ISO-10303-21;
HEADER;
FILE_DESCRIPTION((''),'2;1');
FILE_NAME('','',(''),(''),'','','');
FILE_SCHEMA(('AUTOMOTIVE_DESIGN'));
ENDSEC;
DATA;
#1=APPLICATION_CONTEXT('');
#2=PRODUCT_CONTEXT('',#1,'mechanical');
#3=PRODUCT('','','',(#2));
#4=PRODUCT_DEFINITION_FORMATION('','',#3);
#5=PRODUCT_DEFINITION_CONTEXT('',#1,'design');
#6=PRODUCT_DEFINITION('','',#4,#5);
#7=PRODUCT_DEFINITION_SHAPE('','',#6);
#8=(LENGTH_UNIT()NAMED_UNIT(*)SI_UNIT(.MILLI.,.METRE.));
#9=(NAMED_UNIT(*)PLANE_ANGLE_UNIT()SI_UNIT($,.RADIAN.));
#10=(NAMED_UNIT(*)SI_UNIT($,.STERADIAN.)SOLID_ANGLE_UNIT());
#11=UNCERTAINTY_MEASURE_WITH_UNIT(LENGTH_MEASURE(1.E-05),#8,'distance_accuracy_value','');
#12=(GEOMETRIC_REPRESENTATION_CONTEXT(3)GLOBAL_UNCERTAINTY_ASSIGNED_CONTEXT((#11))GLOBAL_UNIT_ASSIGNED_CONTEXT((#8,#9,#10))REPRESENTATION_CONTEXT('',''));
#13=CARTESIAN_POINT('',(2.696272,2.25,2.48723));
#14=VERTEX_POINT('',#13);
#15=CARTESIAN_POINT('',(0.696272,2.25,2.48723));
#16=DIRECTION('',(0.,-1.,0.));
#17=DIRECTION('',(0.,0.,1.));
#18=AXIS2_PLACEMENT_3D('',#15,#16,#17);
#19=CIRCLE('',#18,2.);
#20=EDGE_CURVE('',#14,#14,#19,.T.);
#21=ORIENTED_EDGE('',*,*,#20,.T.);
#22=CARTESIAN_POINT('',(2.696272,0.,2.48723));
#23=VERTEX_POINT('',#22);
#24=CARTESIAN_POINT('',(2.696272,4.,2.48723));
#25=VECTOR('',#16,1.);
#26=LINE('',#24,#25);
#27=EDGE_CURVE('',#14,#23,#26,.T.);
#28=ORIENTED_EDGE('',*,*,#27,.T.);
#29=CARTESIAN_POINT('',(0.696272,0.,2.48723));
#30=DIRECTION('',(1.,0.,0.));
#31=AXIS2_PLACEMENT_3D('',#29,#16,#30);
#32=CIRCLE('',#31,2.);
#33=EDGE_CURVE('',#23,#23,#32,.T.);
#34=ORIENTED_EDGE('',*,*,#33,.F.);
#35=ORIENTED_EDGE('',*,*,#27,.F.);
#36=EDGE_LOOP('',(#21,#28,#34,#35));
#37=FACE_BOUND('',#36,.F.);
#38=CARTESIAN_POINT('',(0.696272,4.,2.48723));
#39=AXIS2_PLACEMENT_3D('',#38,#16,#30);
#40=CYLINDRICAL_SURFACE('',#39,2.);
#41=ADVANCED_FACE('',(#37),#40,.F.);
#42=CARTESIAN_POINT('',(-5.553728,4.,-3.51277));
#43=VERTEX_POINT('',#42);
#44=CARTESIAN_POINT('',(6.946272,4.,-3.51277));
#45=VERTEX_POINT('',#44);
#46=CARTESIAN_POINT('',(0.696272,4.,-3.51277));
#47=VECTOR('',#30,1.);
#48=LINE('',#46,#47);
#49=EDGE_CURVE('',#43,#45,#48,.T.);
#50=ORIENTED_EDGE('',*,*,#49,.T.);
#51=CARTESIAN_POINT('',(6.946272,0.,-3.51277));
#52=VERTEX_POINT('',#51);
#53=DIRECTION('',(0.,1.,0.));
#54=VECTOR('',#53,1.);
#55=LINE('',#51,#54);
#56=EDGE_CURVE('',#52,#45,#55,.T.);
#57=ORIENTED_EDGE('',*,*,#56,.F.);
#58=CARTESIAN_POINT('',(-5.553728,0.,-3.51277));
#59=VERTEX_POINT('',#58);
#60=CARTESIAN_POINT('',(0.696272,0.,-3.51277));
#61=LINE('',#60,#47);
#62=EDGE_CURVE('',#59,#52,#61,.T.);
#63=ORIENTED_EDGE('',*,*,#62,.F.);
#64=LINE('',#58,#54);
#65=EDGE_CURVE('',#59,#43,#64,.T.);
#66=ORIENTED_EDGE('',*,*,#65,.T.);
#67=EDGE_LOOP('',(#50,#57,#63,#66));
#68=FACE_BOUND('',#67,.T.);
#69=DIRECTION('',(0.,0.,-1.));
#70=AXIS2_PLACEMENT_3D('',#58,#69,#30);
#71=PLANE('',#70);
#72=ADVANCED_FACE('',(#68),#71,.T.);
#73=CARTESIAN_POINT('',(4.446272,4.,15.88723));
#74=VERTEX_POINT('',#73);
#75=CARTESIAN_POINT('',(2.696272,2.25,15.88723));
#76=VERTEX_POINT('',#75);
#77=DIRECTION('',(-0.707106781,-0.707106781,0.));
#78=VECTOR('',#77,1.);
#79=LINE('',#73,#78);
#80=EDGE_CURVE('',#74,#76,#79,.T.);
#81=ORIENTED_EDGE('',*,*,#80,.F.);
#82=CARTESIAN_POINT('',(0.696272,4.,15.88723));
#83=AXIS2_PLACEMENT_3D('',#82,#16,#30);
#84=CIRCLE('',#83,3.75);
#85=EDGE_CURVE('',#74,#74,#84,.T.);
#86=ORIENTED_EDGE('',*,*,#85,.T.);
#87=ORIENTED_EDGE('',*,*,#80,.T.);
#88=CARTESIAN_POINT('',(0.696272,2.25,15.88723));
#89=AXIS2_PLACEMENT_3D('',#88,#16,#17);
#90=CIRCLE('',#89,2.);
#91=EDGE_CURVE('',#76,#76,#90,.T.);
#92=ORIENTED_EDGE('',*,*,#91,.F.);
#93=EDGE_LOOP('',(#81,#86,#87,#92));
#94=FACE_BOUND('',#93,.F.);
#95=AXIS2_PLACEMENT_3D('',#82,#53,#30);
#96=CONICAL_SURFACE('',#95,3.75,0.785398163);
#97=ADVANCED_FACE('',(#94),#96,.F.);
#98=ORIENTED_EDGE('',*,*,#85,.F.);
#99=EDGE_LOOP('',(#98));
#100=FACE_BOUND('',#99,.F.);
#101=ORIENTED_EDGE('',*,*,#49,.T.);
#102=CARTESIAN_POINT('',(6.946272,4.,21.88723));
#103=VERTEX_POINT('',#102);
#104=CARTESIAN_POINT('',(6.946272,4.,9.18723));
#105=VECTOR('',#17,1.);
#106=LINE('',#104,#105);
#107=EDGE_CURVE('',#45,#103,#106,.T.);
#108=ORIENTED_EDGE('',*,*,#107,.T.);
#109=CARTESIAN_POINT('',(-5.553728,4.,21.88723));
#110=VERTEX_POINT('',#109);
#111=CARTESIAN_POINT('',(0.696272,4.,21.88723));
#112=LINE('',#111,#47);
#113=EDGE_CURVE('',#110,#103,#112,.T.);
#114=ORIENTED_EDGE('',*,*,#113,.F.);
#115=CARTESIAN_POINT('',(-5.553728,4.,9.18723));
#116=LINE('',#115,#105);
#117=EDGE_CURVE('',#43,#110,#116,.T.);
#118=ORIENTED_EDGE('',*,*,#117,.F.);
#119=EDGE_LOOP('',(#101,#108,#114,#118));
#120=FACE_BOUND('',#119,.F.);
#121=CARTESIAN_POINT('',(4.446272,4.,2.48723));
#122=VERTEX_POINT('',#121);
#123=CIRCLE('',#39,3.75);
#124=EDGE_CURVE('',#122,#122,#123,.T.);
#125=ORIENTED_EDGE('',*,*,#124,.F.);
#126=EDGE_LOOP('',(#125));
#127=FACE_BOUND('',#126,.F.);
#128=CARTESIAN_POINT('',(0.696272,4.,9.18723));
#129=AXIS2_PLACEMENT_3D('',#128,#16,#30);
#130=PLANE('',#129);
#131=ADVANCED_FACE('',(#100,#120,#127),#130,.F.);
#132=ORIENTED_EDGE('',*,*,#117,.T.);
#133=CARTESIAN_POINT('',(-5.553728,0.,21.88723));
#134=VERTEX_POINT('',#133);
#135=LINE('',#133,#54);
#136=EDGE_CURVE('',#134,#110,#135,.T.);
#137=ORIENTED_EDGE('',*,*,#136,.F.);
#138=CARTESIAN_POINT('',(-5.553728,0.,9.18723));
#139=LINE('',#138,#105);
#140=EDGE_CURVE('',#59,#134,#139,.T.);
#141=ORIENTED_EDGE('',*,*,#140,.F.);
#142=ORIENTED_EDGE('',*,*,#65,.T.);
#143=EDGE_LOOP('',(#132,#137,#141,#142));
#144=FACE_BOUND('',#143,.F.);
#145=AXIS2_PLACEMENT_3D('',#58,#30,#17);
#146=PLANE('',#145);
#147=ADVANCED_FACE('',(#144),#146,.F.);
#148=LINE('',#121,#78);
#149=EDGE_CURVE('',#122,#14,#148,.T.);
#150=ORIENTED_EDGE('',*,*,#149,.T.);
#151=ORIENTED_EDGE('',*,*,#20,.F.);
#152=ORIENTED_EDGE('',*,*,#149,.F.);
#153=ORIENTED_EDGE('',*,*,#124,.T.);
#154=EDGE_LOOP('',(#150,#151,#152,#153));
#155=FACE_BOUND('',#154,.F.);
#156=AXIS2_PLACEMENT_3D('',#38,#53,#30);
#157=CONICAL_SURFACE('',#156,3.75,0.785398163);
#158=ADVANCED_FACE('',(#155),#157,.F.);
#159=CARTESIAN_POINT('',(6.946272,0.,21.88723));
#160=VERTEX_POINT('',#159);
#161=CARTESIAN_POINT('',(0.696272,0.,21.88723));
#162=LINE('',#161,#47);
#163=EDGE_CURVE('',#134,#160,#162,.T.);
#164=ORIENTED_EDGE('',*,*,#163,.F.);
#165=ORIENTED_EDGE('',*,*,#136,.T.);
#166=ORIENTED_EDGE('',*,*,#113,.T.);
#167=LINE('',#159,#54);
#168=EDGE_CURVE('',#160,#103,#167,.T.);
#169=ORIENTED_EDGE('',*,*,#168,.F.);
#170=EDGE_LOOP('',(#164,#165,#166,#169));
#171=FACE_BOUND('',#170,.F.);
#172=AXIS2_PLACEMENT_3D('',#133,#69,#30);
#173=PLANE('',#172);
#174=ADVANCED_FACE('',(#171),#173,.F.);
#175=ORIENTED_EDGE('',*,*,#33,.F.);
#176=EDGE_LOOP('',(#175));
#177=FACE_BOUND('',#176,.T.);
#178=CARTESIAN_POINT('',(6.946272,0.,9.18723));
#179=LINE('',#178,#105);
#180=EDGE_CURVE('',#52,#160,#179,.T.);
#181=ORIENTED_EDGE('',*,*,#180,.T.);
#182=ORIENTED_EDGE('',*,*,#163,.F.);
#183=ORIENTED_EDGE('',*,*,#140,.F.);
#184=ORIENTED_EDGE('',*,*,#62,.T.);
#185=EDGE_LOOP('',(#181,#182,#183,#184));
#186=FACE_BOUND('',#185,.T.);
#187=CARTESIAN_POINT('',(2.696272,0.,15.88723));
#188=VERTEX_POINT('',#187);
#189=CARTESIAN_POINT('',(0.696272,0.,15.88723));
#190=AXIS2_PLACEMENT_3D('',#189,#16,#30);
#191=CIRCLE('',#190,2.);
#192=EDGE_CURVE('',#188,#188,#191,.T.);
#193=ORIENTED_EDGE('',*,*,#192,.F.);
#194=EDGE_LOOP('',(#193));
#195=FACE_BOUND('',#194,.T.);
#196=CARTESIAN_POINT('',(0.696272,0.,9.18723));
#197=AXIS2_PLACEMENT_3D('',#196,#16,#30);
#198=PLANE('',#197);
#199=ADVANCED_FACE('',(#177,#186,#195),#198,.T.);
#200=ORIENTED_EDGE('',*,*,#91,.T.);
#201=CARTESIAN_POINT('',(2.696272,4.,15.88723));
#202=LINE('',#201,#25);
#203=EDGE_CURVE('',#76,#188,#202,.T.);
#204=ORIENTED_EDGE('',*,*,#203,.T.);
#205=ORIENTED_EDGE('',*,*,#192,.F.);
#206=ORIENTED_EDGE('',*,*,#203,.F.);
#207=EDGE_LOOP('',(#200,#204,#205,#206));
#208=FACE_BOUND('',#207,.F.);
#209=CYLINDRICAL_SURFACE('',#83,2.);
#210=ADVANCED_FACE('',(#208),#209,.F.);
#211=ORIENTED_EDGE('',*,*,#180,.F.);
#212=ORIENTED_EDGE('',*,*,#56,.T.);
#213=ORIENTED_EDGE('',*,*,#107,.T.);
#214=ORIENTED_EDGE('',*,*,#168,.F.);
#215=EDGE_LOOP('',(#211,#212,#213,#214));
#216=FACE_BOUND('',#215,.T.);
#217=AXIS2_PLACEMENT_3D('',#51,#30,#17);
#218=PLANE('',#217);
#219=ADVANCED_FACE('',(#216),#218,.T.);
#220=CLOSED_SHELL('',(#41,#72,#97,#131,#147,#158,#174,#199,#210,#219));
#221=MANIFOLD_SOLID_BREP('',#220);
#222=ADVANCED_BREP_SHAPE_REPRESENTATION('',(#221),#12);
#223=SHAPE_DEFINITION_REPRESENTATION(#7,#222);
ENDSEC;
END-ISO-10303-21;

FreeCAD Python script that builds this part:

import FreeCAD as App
import Part
import Sketcher
Q = App.Units.Quantity


def add_polygon(sketch, points):
    """Adds a closed chain of lines whose ends are joined by coincident constraints."""
    first, n = sketch.GeometryCount, len(points)
    for a, b in zip(points, points[1:] + points[:1]):
        sketch.addGeometry(Part.LineSegment(App.Vector(*a, 0), App.Vector(*b, 0)), False)
    for i in range(n):
        sketch.addConstraint(Sketcher.Constraint("Coincident", first + i, 2, first + (i + 1) % n, 1))

doc = App.newDocument("Part")
body = doc.addObject("PartDesign::Body", "Body")

sketch1 = body.newObject("Sketcher::SketchObject", "Sketch")
sketch1.AttachmentSupport = (doc.getObject("XZ_Plane"), [""])
sketch1.MapMode = "FlatFace"
add_polygon(sketch1, [(-5.553728, 21.88723), (-5.553728, -3.51277), (6.946272, -3.51277), (6.946272, 21.88723)])
sketch1.addConstraint(Sketcher.Constraint("Vertical", 0))
sketch1.addConstraint(Sketcher.Constraint("Horizontal", 1))
sketch1.addConstraint(Sketcher.Constraint("Vertical", 2))
sketch1.addConstraint(Sketcher.Constraint("Horizontal", 3))
sketch1.addConstraint(Sketcher.Constraint("DistanceX", 1, 1, 1, 2, Q("12.5 mm")))
sketch1.addConstraint(Sketcher.Constraint("DistanceY", 0, 2, 0, 1, Q("25.4 mm")))
sketch1.addConstraint(Sketcher.Constraint("DistanceX", 0, 2, -1, 1, Q("5.553728 mm")))
sketch1.addConstraint(Sketcher.Constraint("DistanceY", 0, 2, -1, 1, Q("3.51277 mm")))
pad1 = body.newObject("PartDesign::Pad", "Pad")
pad1.Profile = sketch1
pad1.Length = 4
pad1.Reversed = True

sketch2 = body.newObject("Sketcher::SketchObject", "Sketch001")
sketch2.AttachmentSupport = (doc.getObject("XZ_Plane"), [""])
sketch2.MapMode = "FlatFace"
sketch2.AttachmentOffset = App.Placement(App.Vector(0, 0, -4), App.Rotation())
sketch2.addGeometry(Part.Circle(App.Vector(0.696272, 15.88723, 0), App.Vector(0, 0, 1), 2), False)
sketch2.addGeometry(Part.Circle(App.Vector(0.696272, 2.48723, 0), App.Vector(0, 0, 1), 2), False)
sketch2.addConstraint(Sketcher.Constraint("Equal", 0, 1))
sketch2.addConstraint(Sketcher.Constraint("Vertical", 0, 3, 1, 3))
sketch2.addConstraint(Sketcher.Constraint("Diameter", 0, Q("4 mm")))
sketch2.addConstraint(Sketcher.Constraint("DistanceY", 1, 3, 0, 3, Q("13.4 mm")))
sketch2.addConstraint(Sketcher.Constraint("DistanceY", -1, 1, 0, 3, Q("15.88723 mm")))
sketch2.addConstraint(Sketcher.Constraint("DistanceX", -1, 1, 0, 3, Q("0.696272 mm")))
doc.recompute()
hole = body.newObject("PartDesign::Hole", "Hole")
hole.Profile = sketch2
hole.ThreadType = "None"
hole.Diameter = 4
hole.DepthType = "ThroughAll"
hole.HoleCutType = "Countersink"
hole.HoleCutDiameter = 7.5
hole.HoleCutCountersinkAngle = 90
hole.Reversed = True

doc.recompute()
